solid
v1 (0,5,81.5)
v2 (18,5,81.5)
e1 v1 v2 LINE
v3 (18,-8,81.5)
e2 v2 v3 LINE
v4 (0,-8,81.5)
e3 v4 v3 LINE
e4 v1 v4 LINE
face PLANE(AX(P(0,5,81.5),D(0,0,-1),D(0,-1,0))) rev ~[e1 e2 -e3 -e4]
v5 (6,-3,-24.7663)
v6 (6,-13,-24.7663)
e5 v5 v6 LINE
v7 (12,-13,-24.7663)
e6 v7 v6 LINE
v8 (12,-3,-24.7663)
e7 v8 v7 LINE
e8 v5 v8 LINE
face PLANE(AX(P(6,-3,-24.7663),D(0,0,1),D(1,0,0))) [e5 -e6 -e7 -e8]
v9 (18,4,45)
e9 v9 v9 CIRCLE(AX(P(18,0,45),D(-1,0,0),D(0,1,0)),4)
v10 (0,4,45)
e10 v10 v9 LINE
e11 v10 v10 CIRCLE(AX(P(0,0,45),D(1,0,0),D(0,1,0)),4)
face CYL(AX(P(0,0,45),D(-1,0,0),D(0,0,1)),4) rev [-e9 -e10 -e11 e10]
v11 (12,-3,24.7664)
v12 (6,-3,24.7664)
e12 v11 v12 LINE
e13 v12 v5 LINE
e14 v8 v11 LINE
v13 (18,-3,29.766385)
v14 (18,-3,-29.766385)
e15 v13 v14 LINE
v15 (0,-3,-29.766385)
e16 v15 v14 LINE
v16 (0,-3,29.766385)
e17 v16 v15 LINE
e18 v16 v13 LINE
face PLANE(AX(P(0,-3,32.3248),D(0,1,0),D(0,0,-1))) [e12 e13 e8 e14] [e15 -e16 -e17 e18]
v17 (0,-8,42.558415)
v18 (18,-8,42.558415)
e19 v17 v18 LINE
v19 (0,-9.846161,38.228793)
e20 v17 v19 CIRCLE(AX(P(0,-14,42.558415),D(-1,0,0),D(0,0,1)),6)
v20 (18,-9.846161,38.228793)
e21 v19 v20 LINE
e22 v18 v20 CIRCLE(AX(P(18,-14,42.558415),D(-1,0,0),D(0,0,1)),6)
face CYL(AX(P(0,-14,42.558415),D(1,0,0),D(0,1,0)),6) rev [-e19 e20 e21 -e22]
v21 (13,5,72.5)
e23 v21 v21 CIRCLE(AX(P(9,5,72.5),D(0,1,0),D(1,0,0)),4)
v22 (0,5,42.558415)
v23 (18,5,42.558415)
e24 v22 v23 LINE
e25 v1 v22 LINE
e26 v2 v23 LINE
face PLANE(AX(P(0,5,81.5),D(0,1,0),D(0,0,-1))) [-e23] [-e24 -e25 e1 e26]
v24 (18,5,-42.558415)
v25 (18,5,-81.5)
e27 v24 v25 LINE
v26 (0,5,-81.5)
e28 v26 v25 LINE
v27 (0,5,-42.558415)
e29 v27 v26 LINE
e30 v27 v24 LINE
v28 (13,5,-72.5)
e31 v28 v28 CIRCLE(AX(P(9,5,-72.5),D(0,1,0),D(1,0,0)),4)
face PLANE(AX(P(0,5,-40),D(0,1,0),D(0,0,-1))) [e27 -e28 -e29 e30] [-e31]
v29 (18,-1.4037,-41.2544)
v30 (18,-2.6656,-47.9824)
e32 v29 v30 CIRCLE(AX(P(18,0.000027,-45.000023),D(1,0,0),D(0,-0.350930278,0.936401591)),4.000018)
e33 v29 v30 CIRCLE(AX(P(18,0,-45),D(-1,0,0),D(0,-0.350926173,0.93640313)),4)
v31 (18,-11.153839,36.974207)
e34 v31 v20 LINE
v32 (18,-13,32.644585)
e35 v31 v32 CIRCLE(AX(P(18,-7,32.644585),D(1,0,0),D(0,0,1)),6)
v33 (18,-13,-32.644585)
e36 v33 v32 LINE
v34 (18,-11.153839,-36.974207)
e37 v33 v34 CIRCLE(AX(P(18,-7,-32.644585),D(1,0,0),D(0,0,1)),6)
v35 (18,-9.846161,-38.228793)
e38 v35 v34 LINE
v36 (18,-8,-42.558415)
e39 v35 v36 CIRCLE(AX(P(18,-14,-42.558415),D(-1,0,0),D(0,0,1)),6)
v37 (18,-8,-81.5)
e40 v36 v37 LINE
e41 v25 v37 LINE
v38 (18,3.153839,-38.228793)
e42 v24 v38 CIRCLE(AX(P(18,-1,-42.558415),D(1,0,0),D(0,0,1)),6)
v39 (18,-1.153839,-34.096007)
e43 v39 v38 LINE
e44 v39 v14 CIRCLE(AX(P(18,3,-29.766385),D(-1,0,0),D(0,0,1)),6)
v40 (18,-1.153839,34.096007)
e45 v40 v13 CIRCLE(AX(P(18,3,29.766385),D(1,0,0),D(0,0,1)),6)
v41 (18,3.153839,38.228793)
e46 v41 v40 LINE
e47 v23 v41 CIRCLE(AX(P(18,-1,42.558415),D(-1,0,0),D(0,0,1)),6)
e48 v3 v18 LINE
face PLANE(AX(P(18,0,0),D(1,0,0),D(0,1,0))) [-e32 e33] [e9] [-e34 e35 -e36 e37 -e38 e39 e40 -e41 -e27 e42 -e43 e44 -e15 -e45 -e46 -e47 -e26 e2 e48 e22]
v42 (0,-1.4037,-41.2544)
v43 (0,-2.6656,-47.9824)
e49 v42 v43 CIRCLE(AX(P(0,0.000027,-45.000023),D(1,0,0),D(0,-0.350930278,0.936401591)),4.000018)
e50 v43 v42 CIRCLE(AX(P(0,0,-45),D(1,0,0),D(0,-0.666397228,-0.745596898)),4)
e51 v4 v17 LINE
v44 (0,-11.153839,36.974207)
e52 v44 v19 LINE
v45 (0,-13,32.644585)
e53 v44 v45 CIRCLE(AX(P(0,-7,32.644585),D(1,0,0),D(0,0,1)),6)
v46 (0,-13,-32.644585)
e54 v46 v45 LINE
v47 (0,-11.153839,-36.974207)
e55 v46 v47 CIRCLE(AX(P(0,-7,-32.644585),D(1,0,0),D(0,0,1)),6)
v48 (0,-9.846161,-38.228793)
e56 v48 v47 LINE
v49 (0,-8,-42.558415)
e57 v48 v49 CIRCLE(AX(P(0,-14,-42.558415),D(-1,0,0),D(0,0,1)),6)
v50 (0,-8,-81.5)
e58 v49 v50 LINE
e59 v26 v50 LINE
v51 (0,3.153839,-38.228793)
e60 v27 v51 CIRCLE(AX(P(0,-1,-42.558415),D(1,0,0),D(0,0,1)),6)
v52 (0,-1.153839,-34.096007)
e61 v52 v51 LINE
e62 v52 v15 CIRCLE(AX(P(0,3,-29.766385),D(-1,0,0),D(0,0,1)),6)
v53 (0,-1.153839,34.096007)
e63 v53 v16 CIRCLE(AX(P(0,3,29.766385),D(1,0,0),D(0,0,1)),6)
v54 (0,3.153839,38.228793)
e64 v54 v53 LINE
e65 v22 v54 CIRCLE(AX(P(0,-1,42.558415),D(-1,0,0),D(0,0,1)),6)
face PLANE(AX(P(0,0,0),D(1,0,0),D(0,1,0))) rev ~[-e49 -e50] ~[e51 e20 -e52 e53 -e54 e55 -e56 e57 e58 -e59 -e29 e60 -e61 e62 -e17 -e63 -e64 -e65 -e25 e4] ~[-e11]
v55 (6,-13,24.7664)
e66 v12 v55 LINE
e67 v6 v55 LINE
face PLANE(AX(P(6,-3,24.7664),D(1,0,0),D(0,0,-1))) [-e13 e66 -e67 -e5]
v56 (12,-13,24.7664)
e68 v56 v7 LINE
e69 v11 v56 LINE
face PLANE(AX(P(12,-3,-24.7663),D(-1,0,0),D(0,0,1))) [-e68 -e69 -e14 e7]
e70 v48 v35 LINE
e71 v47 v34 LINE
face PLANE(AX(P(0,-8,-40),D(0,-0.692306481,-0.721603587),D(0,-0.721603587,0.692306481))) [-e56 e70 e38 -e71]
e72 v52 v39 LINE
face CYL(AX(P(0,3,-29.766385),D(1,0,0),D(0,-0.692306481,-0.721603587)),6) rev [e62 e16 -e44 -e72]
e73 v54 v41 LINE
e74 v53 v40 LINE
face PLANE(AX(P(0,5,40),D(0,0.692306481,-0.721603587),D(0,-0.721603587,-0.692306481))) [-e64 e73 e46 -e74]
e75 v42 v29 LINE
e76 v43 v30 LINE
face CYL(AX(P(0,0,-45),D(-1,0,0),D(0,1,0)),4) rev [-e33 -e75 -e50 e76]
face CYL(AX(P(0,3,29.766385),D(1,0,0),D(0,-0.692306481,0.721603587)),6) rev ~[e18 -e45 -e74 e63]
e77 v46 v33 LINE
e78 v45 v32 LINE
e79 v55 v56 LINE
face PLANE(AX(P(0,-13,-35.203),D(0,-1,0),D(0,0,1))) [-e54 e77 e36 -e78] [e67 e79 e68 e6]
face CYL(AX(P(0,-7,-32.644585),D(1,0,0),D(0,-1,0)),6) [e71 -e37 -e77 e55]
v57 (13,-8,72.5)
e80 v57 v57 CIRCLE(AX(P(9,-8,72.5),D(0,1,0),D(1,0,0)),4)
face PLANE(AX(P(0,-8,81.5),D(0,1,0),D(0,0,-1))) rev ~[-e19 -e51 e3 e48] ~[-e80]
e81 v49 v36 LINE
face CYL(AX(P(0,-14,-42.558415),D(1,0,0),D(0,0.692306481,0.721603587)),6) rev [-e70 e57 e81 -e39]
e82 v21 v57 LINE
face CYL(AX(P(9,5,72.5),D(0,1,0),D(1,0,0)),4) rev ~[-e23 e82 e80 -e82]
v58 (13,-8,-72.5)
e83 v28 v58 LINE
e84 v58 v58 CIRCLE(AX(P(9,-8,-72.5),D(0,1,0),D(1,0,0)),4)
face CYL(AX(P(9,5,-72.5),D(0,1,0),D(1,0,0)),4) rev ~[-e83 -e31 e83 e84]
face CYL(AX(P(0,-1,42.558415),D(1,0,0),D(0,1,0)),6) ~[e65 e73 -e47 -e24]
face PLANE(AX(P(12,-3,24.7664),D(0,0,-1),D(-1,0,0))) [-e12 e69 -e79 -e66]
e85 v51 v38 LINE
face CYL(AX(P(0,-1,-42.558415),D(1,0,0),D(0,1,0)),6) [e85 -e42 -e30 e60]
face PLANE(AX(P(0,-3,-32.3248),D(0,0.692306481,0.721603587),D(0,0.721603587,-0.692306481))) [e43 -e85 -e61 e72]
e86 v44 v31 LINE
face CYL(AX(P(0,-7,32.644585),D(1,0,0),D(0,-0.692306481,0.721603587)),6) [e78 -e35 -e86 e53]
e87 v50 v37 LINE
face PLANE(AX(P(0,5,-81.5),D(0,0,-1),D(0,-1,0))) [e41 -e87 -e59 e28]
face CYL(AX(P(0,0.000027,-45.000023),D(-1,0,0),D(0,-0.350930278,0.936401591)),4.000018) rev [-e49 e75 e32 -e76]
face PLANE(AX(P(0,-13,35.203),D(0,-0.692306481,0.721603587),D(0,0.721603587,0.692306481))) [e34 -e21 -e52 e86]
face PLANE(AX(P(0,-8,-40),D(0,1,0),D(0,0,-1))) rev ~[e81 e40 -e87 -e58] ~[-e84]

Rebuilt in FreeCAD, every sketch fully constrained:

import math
import FreeCAD as App
import Part
import Sketcher

V = App.Vector
Q = App.Units.Quantity


def edges_at(feature, points):
    """Names of the edges that pass closest to the given points."""
    edges = feature.Shape.Edges
    near = lambda p: min(range(len(edges)), key=lambda i: edges[i].distToShape(Part.Vertex(*p))[0])
    return sorted({f"Edge{near(p) + 1}" for p in points})

doc = App.newDocument("Part")
params = doc.addObject("Spreadsheet::Sheet", "Params")
for row, (alias, value) in enumerate([
    ("sketch1_diameter", "8 mm"),
    ("sketch1_width", "13 mm"),
    ("pad1_length", "18 mm"),
    ("sketch2_diameter", "8 mm"),
    ("pocket1_length", "27.75 mm"),
    ("fillet_radius", "6 mm"),
    ("sketch3_width", "6 mm"),
    ("pocket2_length", "27.75 mm"),
], start=1):
    params.set(f"A{row}", alias)
    params.set(f"B{row}", "=" + value)
    params.setAlias(f"B{row}", alias)

body = doc.addObject("PartDesign::Body", "Body")

# Sketch on YZ plane
sketch1 = body.newObject("Sketcher::SketchObject", "Sketch")
sketch1.AttachmentSupport = (doc.getObject("YZ_Plane"), [""])
sketch1.MapMode = "FlatFace"
sketch1.addGeometry([
    Part.LineSegment(V(5, 40, 0), V(5, 81.5, 0)),  # 0
    Part.LineSegment(V(5, 81.5, 0), V(-8, 81.5, 0)),  # 1
    Part.LineSegment(V(-8, 81.5, 0), V(-8, 40, 0)),  # 2
    Part.LineSegment(V(-8, 40, 0), V(-13, 35.2, 0)),  # 3
    Part.LineSegment(V(-13, 35.2, 0), V(-13, -35.2, 0)),  # 4
    Part.LineSegment(V(-13, -35.2, 0), V(-8, -40, 0)),  # 5
    Part.LineSegment(V(-8, -40, 0), V(-8, -81.5, 0)),  # 6
    Part.LineSegment(V(-8, -81.5, 0), V(5, -81.5, 0)),  # 7
    Part.LineSegment(V(5, -81.5, 0), V(5, -40, 0)),  # 8
    Part.LineSegment(V(5, -40, 0), V(-3, -32.3, 0)),  # 9
    Part.LineSegment(V(-3, -32.3, 0), V(-3, 32.3, 0)),  # 10
    Part.LineSegment(V(-3, 32.3, 0), V(5, 40, 0)),  # 11
    Part.Circle(V(0, 45, 0), V(0, 0, 1), 4),  # 12
    Part.ArcOfCircle(Part.Circle(V(0, -45, 0), V(0, 0, 1), 4), math.radians(-132), math.radians(111)),  # 13
    Part.ArcOfCircle(Part.Circle(V(0, -45, 0), V(0, 0, 1), 4), math.radians(111), math.radians(228)),  # 14
], False)
sketch1.addConstraint([
    Sketcher.Constraint("Coincident", 0, 2, 1, 1),
    Sketcher.Constraint("Coincident", 1, 2, 2, 1),
    Sketcher.Constraint("Coincident", 2, 2, 3, 1),
    Sketcher.Constraint("Coincident", 3, 2, 4, 1),
    Sketcher.Constraint("Coincident", 4, 2, 5, 1),
    Sketcher.Constraint("Coincident", 5, 2, 6, 1),
    Sketcher.Constraint("Coincident", 6, 2, 7, 1),
    Sketcher.Constraint("Coincident", 7, 2, 8, 1),
    Sketcher.Constraint("Coincident", 8, 2, 9, 1),
    Sketcher.Constraint("Coincident", 9, 2, 10, 1),
    Sketcher.Constraint("Coincident", 10, 2, 11, 1),
    Sketcher.Constraint("Coincident", 11, 2, 0, 1),
    Sketcher.Constraint("Tangent", 13, 1, 14, 2),
    Sketcher.Constraint("Coincident", 14, 1, 13, 2),
    Sketcher.Constraint("Vertical", 0),
    Sketcher.Constraint("Horizontal", 1),
    Sketcher.Constraint("Vertical", 2),
    Sketcher.Constraint("Vertical", 4),
    Sketcher.Constraint("Vertical", 6),
    Sketcher.Constraint("Horizontal", 7),
    Sketcher.Constraint("Vertical", 8),
    Sketcher.Constraint("Vertical", 10),
    Sketcher.Constraint("Equal", 12, 13),
    Sketcher.Constraint("Symmetric", 12, 3, 13, 3, -1, 1),
    Sketcher.Constraint("Symmetric", 2, 2, 5, 2, -1),
    Sketcher.Constraint("Symmetric", 0, 2, 7, 2, -1),
    Sketcher.Constraint("PointOnObject", 12, 3, -2),
    Sketcher.Constraint("Parallel", 5, 9),
    Sketcher.Constraint("Parallel", 3, 11),
    Sketcher.Constraint("Horizontal", 5, 2, 8, 2),
    Sketcher.Constraint("Horizontal", 2, 2, 11, 2),
    Sketcher.Constraint("Equal", 3, 5),
    Sketcher.Constraint("Diameter", 12, Q("8 mm")),
    Sketcher.Constraint("DistanceX", 1, 2, 1, 1, Q("13 mm")),
    Sketcher.Constraint("DistanceY", -1, 1, 12, 3, Q("45 mm")),
    Sketcher.Constraint("DistanceX", -1, 1, 0, 2, Q("5 mm")),
    Sketcher.Constraint("DistanceX", 3, 2, -1, 1, Q("13 mm")),
    Sketcher.Constraint("DistanceY", 2, 2, 12, 3, Q("5 mm")),
    Sketcher.Constraint("DistanceX", 5, 2, 9, 2, Q("5 mm")),
    Sketcher.Constraint("DistanceY", 12, 3, 0, 2, Q("36.5 mm")),
    Sketcher.Constraint("DistanceY", 4, 2, 4, 1, Q("70.406 mm")),
    Sketcher.Constraint("DistanceX", 13, 1, 14, 1, Q("1.262 mm")),
    Sketcher.Constraint("DistanceY", 13, 1, 14, 1, Q("6.728 mm")),
])
sketch1.setExpression("Constraints[32]", "Params.sketch1_diameter")
sketch1.setExpression("Constraints[33]", "Params.sketch1_width")
pad1 = body.newObject("PartDesign::Pad", "Pad")
pad1.Profile = sketch1
pad1.setExpression("Length", "Params.pad1_length")

# Sketch on XZ plane
sketch2 = body.newObject("Sketcher::SketchObject", "Sketch001")
sketch2.AttachmentSupport = (doc.getObject("XZ_Plane"), [""])
sketch2.MapMode = "FlatFace"
sketch2.AttachmentOffset = App.Placement(V(0, 0, -5), App.Rotation())
sketch2.addGeometry([
    Part.Circle(V(9, 72.5, 0), V(0, 0, 1), 4),
    Part.Circle(V(9, -72.5, 0), V(0, 0, 1), 4),
], False)
sketch2.addConstraint([
    Sketcher.Constraint("Equal", 0, 1),
    Sketcher.Constraint("Symmetric", 0, 3, 1, 3, -1),
    Sketcher.Constraint("Diameter", 0, Q("8 mm")),
    Sketcher.Constraint("DistanceX", -1, 1, 0, 3, Q("9 mm")),
    Sketcher.Constraint("DistanceY", 1, 3, 0, 3, Q("145 mm")),
])
sketch2.setExpression("Constraints[2]", "Params.sketch2_diameter")
pocket1 = body.newObject("PartDesign::Pocket", "Pocket")
pocket1.Profile = sketch2
pocket1.setExpression("Length", "Params.pocket1_length")
pocket1.Reversed = True
doc.recompute()

fillet = body.newObject("PartDesign::Fillet", "Fillet")
fillet.Base = (pocket1, edges_at(pocket1, [
    (9, -8, -40),
    (9, -13, -35.203),
    (9, -13, 35.203),
    (9, -8, 40),
    (9, 5, -40),
    (9, -3, -32.325),
    (9, -3, 32.325),
    (9, 5, 40),
]))
fillet.setExpression("Radius", "Params.fillet_radius")

# Sketch on XZ plane
sketch3 = body.newObject("Sketcher::SketchObject", "Sketch002")
sketch3.AttachmentSupport = (doc.getObject("XZ_Plane"), [""])
sketch3.MapMode = "FlatFace"
sketch3.AttachmentOffset = App.Placement(V(0, 0, 3), App.Rotation())
sketch3.addGeometry([
    Part.LineSegment(V(12, -25, 0), V(6, -25, 0)),
    Part.LineSegment(V(6, -25, 0), V(6, 25, 0)),
    Part.LineSegment(V(6, 25, 0), V(12, 25, 0)),
    Part.LineSegment(V(12, 25, 0), V(12, -25, 0)),
], False)
sketch3.addConstraint([
    Sketcher.Constraint("Coincident", 0, 2, 1, 1),
    Sketcher.Constraint("Coincident", 1, 2, 2, 1),
    Sketcher.Constraint("Coincident", 2, 2, 3, 1),
    Sketcher.Constraint("Coincident", 3, 2, 0, 1),
    Sketcher.Constraint("Horizontal", 0),
    Sketcher.Constraint("Vertical", 1),
    Sketcher.Constraint("Horizontal", 2),
    Sketcher.Constraint("Vertical", 3),
    Sketcher.Constraint("DistanceX", 0, 2, 0, 1, Q("6 mm")),
    Sketcher.Constraint("DistanceX", -1, 1, 0, 2, Q("6 mm")),
    Sketcher.Constraint("DistanceY", 1, 1, 1, 2, Q("49.5327 mm")),
    Sketcher.Constraint("DistanceY", 0, 2, -1, 1, Q("24.7663 mm")),
])
sketch3.setExpression("Constraints[8]", "Params.sketch3_width")
pocket2 = body.newObject("PartDesign::Pocket", "Pocket001")
pocket2.Profile = sketch3
pocket2.setExpression("Length", "Params.pocket2_length")
pocket2.Reversed = True

doc.recompute()
